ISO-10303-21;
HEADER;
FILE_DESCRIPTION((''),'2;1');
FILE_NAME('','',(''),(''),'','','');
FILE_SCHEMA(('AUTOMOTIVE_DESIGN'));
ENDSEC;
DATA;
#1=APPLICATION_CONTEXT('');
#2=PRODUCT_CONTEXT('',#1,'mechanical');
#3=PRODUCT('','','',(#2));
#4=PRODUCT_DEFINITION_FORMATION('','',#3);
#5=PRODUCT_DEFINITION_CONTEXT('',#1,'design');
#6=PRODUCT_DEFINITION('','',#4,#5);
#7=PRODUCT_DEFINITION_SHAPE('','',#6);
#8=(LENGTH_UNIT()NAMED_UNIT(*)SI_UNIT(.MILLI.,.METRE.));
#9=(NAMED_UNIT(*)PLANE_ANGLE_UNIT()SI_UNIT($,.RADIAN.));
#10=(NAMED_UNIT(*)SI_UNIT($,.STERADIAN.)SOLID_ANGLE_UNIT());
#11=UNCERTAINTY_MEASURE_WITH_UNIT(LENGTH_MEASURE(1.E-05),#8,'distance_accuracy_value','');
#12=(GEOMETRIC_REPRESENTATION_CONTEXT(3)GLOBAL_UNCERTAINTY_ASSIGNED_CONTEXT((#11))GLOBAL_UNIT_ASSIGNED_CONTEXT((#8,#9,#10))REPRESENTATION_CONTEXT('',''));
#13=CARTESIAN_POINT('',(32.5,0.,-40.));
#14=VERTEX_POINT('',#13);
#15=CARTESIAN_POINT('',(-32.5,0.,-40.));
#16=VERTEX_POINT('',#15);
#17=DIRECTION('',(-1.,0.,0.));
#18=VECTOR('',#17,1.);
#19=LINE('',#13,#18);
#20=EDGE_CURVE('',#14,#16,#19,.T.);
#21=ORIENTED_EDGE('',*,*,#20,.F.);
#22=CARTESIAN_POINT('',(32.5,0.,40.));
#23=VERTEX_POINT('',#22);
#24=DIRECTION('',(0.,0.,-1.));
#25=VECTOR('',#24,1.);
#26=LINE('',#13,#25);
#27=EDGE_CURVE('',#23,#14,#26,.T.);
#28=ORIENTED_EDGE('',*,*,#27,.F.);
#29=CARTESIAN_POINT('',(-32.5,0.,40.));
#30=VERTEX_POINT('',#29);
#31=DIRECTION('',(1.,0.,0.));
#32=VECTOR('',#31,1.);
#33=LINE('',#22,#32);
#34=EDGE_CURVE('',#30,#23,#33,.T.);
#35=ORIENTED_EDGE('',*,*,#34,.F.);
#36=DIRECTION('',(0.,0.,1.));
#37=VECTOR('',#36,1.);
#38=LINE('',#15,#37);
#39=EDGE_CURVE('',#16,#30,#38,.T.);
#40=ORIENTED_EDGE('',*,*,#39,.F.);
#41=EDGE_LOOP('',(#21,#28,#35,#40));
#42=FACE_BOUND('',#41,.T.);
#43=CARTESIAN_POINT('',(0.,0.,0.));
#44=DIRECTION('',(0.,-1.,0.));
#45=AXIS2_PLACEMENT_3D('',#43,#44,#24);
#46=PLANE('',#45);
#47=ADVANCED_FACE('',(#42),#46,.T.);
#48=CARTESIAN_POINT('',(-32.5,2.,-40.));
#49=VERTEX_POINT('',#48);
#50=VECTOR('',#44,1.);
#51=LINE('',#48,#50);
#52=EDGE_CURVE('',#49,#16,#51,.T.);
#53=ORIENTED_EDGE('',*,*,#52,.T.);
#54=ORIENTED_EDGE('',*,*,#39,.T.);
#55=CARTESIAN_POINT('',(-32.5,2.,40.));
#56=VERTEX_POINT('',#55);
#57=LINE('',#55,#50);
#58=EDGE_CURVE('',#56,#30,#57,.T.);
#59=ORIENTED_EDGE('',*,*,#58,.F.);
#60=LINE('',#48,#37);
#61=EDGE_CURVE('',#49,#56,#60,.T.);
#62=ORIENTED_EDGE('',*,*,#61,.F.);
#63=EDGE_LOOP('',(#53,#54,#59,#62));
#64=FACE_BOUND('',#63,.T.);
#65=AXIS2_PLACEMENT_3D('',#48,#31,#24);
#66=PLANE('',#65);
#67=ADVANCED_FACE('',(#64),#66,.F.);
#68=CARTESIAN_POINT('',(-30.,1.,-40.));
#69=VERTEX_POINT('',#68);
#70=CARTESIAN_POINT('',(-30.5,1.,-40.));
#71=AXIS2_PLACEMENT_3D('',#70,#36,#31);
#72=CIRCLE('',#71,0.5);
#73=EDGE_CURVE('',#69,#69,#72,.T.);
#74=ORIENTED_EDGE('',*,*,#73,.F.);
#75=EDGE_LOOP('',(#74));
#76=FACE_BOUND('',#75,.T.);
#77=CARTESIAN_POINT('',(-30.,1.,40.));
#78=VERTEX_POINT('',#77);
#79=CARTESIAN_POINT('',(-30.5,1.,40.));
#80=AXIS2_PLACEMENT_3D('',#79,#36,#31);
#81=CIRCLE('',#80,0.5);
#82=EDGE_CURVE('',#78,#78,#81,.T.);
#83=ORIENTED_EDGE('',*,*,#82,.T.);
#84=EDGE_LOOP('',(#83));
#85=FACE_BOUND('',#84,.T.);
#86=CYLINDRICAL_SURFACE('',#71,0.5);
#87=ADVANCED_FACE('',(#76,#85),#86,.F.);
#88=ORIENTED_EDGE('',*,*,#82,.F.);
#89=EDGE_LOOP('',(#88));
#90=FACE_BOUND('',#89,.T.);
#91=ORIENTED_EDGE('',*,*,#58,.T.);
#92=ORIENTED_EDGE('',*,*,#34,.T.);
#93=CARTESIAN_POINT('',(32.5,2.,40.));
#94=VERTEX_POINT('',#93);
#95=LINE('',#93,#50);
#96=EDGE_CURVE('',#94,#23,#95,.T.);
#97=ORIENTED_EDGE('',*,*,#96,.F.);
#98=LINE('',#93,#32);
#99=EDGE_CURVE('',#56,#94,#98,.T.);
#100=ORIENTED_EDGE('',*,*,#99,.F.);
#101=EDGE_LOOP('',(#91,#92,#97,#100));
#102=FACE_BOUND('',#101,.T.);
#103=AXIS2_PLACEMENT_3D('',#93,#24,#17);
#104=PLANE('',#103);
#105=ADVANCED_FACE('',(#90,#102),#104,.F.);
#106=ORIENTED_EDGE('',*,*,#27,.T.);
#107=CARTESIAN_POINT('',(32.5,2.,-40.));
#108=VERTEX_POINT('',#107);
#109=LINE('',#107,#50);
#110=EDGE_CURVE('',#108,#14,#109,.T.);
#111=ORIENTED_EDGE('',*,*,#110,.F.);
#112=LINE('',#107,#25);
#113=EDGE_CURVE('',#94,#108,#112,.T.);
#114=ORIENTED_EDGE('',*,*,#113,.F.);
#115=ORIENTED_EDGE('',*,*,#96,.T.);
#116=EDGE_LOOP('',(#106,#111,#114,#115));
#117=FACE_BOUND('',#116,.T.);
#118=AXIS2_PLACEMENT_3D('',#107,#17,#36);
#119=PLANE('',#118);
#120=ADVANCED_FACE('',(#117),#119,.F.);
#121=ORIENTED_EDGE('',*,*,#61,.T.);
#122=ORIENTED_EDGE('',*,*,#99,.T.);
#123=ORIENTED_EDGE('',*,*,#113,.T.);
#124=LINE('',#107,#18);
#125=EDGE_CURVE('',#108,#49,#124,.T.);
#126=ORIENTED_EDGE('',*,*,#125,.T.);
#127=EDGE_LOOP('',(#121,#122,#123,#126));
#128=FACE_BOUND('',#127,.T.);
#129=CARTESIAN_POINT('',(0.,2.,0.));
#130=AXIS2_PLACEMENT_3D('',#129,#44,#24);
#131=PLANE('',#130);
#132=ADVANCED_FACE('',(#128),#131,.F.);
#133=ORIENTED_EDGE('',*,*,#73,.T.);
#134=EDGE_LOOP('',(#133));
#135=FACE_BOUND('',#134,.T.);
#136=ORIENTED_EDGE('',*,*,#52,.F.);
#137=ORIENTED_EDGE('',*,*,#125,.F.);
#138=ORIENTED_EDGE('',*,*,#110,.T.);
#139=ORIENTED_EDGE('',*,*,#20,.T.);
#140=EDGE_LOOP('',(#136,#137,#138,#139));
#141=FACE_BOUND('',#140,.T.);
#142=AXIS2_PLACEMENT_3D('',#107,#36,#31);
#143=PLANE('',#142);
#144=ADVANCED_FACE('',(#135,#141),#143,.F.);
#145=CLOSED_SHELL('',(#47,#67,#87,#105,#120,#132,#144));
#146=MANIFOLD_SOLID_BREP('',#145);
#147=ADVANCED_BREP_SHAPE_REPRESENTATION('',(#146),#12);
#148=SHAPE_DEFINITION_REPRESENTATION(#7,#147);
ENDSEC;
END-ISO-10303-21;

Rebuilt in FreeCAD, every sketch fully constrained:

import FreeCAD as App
import Part
import Sketcher

V = App.Vector
Q = App.Units.Quantity


def add_polygon(sketch, points):
    """Adds a closed chain of lines whose ends are joined by coincident constraints."""
    first, n = sketch.GeometryCount, len(points)
    for a, b in zip(points, points[1:] + points[:1]):
        sketch.addGeometry(Part.LineSegment(App.Vector(*a, 0), App.Vector(*b, 0)), False)
    for i in range(n):
        sketch.addConstraint(Sketcher.Constraint("Coincident", first + i, 2, first + (i + 1) % n, 1))

doc = App.newDocument("Part")
body = doc.addObject("PartDesign::Body", "Body")

# Sketch on XZ plane
sketch1 = body.newObject("Sketcher::SketchObject", "Sketch")
sketch1.AttachmentSupport = (doc.getObject("XZ_Plane"), [""])
sketch1.MapMode = "FlatFace"
add_polygon(sketch1, [(-32.5, -40), (-32.5, 40), (32.5, 40), (32.5, -40)])  # lines 0-3
sketch1.addConstraint([
    Sketcher.Constraint("Vertical", 0),
    Sketcher.Constraint("Horizontal", 1),
    Sketcher.Constraint("Vertical", 2),
    Sketcher.Constraint("Horizontal", 3),
    Sketcher.Constraint("Symmetric", 0, 2, 2, 2, -1, 1),
    Sketcher.Constraint("DistanceX", 1, 1, 1, 2, Q("65 mm")),
    Sketcher.Constraint("DistanceY", 0, 1, 0, 2, Q("80 mm")),
])
pad1 = body.newObject("PartDesign::Pad", "Pad")
pad1.Profile = sketch1
pad1.Length = 2
pad1.Reversed = True

# Sketch on XY plane
sketch2 = body.newObject("Sketcher::SketchObject", "Sketch001")
sketch2.AttachmentSupport = (doc.getObject("XY_Plane"), [""])
sketch2.MapMode = "FlatFace"
sketch2.AttachmentOffset = App.Placement(V(0, 0, 40), App.Rotation())
sketch2.addGeometry(Part.Circle(V(-30.5, 1, 0), V(0, 0, 1), 0.5), False)
sketch2.addConstraint([
    Sketcher.Constraint("Diameter", 0, Q("1 mm")),
    Sketcher.Constraint("DistanceY", -1, 1, 0, 3, Q("1 mm")),
    Sketcher.Constraint("DistanceX", 0, 3, -1, 1, Q("30.5 mm")),
])
pocket1 = body.newObject("PartDesign::Pocket", "Pocket")
pocket1.Profile = sketch2
pocket1.Type = "ThroughAll"

doc.recompute()
